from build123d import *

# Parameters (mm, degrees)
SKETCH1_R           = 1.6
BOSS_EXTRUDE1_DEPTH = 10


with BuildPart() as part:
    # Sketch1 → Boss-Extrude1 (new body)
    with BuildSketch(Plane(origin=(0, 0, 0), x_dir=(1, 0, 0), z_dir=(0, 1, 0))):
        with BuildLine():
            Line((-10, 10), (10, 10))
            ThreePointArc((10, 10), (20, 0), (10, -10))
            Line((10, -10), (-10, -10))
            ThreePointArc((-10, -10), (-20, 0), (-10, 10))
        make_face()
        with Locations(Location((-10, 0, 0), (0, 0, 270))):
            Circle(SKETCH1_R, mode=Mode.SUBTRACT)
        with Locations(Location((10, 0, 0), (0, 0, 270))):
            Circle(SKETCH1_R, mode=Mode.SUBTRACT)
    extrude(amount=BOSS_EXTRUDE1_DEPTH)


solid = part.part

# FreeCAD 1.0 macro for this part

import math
import FreeCAD as App
import Part
import Sketcher
from FreeCAD import Vector
Q = App.Units.Quantity

doc = App.newDocument("Part")
params = doc.addObject("Spreadsheet::Sheet", "Params")
for row, (alias, value) in enumerate([
    ("sketch1_radius", "10 mm"),
    ("sketch1_diameter", "3.2 mm"),
    ("sketch1_width", "20 mm"),
    ("pad1_length", "10 mm"),
], start=1):
    params.set(f"A{row}", alias)
    params.set(f"B{row}", "=" + value)
    params.setAlias(f"B{row}", alias)

body = doc.addObject("PartDesign::Body", "Body")

sketch1 = doc.addObject("Sketcher::SketchObject", "Sketch")
body.addObject(sketch1)
sketch1.AttachmentSupport = (doc.XZ_Plane, [""])
sketch1.MapMode = "FlatFace"
sketch1.addGeometry([
    Part.LineSegment(Vector(10, -10, 0), Vector(-10, -10, 0)),
    Part.ArcOfCircle(Part.Circle(Vector(-10, 0, 0), Vector(0, 0, 1), 10), math.radians(90), math.radians(270)),
    Part.LineSegment(Vector(-10, 10, 0), Vector(10, 10, 0)),
    Part.ArcOfCircle(Part.Circle(Vector(10, 0, 0), Vector(0, 0, 1), 10), math.radians(-90), math.radians(90)),
    Part.Circle(Vector(10, 0, 0), Vector(0, 0, 1), 1.6),
    Part.Circle(Vector(-10, 0, 0), Vector(0, 0, 1), 1.6),
], False)
sketch1.addConstraint([
    Sketcher.Constraint("Tangent", 0, 2, 1, 2),
    Sketcher.Constraint("Tangent", 1, 1, 2, 1),
    Sketcher.Constraint("Tangent", 2, 2, 3, 2),
    Sketcher.Constraint("Tangent", 3, 1, 0, 1),
    Sketcher.Constraint("Horizontal", 0),
    Sketcher.Constraint("Horizontal", 2),
    Sketcher.Constraint("Coincident", 4, 3, 3, 3),
    Sketcher.Constraint("Coincident", 5, 3, 1, 3),
    Sketcher.Constraint("Equal", 4, 5),
    Sketcher.Constraint("Symmetric", 1, 3, 3, 3, -1, 1),
    Sketcher.Constraint("Radius", 1, Q("10 mm")),
    Sketcher.Constraint("Diameter", 4, Q("3.2 mm")),
    Sketcher.Constraint("DistanceX", 0, 2, 0, 1, Q("20 mm")),
])
sketch1.setExpression("Constraints[10]", "Params.sketch1_radius")
sketch1.setExpression("Constraints[11]", "Params.sketch1_diameter")
sketch1.setExpression("Constraints[12]", "Params.sketch1_width")
pad1 = doc.addObject("PartDesign::Pad", "Pad")
body.addObject(pad1)
pad1.Profile = sketch1
pad1.setExpression("Length", "Params.pad1_length")
pad1.Reversed = True

doc.recompute()
